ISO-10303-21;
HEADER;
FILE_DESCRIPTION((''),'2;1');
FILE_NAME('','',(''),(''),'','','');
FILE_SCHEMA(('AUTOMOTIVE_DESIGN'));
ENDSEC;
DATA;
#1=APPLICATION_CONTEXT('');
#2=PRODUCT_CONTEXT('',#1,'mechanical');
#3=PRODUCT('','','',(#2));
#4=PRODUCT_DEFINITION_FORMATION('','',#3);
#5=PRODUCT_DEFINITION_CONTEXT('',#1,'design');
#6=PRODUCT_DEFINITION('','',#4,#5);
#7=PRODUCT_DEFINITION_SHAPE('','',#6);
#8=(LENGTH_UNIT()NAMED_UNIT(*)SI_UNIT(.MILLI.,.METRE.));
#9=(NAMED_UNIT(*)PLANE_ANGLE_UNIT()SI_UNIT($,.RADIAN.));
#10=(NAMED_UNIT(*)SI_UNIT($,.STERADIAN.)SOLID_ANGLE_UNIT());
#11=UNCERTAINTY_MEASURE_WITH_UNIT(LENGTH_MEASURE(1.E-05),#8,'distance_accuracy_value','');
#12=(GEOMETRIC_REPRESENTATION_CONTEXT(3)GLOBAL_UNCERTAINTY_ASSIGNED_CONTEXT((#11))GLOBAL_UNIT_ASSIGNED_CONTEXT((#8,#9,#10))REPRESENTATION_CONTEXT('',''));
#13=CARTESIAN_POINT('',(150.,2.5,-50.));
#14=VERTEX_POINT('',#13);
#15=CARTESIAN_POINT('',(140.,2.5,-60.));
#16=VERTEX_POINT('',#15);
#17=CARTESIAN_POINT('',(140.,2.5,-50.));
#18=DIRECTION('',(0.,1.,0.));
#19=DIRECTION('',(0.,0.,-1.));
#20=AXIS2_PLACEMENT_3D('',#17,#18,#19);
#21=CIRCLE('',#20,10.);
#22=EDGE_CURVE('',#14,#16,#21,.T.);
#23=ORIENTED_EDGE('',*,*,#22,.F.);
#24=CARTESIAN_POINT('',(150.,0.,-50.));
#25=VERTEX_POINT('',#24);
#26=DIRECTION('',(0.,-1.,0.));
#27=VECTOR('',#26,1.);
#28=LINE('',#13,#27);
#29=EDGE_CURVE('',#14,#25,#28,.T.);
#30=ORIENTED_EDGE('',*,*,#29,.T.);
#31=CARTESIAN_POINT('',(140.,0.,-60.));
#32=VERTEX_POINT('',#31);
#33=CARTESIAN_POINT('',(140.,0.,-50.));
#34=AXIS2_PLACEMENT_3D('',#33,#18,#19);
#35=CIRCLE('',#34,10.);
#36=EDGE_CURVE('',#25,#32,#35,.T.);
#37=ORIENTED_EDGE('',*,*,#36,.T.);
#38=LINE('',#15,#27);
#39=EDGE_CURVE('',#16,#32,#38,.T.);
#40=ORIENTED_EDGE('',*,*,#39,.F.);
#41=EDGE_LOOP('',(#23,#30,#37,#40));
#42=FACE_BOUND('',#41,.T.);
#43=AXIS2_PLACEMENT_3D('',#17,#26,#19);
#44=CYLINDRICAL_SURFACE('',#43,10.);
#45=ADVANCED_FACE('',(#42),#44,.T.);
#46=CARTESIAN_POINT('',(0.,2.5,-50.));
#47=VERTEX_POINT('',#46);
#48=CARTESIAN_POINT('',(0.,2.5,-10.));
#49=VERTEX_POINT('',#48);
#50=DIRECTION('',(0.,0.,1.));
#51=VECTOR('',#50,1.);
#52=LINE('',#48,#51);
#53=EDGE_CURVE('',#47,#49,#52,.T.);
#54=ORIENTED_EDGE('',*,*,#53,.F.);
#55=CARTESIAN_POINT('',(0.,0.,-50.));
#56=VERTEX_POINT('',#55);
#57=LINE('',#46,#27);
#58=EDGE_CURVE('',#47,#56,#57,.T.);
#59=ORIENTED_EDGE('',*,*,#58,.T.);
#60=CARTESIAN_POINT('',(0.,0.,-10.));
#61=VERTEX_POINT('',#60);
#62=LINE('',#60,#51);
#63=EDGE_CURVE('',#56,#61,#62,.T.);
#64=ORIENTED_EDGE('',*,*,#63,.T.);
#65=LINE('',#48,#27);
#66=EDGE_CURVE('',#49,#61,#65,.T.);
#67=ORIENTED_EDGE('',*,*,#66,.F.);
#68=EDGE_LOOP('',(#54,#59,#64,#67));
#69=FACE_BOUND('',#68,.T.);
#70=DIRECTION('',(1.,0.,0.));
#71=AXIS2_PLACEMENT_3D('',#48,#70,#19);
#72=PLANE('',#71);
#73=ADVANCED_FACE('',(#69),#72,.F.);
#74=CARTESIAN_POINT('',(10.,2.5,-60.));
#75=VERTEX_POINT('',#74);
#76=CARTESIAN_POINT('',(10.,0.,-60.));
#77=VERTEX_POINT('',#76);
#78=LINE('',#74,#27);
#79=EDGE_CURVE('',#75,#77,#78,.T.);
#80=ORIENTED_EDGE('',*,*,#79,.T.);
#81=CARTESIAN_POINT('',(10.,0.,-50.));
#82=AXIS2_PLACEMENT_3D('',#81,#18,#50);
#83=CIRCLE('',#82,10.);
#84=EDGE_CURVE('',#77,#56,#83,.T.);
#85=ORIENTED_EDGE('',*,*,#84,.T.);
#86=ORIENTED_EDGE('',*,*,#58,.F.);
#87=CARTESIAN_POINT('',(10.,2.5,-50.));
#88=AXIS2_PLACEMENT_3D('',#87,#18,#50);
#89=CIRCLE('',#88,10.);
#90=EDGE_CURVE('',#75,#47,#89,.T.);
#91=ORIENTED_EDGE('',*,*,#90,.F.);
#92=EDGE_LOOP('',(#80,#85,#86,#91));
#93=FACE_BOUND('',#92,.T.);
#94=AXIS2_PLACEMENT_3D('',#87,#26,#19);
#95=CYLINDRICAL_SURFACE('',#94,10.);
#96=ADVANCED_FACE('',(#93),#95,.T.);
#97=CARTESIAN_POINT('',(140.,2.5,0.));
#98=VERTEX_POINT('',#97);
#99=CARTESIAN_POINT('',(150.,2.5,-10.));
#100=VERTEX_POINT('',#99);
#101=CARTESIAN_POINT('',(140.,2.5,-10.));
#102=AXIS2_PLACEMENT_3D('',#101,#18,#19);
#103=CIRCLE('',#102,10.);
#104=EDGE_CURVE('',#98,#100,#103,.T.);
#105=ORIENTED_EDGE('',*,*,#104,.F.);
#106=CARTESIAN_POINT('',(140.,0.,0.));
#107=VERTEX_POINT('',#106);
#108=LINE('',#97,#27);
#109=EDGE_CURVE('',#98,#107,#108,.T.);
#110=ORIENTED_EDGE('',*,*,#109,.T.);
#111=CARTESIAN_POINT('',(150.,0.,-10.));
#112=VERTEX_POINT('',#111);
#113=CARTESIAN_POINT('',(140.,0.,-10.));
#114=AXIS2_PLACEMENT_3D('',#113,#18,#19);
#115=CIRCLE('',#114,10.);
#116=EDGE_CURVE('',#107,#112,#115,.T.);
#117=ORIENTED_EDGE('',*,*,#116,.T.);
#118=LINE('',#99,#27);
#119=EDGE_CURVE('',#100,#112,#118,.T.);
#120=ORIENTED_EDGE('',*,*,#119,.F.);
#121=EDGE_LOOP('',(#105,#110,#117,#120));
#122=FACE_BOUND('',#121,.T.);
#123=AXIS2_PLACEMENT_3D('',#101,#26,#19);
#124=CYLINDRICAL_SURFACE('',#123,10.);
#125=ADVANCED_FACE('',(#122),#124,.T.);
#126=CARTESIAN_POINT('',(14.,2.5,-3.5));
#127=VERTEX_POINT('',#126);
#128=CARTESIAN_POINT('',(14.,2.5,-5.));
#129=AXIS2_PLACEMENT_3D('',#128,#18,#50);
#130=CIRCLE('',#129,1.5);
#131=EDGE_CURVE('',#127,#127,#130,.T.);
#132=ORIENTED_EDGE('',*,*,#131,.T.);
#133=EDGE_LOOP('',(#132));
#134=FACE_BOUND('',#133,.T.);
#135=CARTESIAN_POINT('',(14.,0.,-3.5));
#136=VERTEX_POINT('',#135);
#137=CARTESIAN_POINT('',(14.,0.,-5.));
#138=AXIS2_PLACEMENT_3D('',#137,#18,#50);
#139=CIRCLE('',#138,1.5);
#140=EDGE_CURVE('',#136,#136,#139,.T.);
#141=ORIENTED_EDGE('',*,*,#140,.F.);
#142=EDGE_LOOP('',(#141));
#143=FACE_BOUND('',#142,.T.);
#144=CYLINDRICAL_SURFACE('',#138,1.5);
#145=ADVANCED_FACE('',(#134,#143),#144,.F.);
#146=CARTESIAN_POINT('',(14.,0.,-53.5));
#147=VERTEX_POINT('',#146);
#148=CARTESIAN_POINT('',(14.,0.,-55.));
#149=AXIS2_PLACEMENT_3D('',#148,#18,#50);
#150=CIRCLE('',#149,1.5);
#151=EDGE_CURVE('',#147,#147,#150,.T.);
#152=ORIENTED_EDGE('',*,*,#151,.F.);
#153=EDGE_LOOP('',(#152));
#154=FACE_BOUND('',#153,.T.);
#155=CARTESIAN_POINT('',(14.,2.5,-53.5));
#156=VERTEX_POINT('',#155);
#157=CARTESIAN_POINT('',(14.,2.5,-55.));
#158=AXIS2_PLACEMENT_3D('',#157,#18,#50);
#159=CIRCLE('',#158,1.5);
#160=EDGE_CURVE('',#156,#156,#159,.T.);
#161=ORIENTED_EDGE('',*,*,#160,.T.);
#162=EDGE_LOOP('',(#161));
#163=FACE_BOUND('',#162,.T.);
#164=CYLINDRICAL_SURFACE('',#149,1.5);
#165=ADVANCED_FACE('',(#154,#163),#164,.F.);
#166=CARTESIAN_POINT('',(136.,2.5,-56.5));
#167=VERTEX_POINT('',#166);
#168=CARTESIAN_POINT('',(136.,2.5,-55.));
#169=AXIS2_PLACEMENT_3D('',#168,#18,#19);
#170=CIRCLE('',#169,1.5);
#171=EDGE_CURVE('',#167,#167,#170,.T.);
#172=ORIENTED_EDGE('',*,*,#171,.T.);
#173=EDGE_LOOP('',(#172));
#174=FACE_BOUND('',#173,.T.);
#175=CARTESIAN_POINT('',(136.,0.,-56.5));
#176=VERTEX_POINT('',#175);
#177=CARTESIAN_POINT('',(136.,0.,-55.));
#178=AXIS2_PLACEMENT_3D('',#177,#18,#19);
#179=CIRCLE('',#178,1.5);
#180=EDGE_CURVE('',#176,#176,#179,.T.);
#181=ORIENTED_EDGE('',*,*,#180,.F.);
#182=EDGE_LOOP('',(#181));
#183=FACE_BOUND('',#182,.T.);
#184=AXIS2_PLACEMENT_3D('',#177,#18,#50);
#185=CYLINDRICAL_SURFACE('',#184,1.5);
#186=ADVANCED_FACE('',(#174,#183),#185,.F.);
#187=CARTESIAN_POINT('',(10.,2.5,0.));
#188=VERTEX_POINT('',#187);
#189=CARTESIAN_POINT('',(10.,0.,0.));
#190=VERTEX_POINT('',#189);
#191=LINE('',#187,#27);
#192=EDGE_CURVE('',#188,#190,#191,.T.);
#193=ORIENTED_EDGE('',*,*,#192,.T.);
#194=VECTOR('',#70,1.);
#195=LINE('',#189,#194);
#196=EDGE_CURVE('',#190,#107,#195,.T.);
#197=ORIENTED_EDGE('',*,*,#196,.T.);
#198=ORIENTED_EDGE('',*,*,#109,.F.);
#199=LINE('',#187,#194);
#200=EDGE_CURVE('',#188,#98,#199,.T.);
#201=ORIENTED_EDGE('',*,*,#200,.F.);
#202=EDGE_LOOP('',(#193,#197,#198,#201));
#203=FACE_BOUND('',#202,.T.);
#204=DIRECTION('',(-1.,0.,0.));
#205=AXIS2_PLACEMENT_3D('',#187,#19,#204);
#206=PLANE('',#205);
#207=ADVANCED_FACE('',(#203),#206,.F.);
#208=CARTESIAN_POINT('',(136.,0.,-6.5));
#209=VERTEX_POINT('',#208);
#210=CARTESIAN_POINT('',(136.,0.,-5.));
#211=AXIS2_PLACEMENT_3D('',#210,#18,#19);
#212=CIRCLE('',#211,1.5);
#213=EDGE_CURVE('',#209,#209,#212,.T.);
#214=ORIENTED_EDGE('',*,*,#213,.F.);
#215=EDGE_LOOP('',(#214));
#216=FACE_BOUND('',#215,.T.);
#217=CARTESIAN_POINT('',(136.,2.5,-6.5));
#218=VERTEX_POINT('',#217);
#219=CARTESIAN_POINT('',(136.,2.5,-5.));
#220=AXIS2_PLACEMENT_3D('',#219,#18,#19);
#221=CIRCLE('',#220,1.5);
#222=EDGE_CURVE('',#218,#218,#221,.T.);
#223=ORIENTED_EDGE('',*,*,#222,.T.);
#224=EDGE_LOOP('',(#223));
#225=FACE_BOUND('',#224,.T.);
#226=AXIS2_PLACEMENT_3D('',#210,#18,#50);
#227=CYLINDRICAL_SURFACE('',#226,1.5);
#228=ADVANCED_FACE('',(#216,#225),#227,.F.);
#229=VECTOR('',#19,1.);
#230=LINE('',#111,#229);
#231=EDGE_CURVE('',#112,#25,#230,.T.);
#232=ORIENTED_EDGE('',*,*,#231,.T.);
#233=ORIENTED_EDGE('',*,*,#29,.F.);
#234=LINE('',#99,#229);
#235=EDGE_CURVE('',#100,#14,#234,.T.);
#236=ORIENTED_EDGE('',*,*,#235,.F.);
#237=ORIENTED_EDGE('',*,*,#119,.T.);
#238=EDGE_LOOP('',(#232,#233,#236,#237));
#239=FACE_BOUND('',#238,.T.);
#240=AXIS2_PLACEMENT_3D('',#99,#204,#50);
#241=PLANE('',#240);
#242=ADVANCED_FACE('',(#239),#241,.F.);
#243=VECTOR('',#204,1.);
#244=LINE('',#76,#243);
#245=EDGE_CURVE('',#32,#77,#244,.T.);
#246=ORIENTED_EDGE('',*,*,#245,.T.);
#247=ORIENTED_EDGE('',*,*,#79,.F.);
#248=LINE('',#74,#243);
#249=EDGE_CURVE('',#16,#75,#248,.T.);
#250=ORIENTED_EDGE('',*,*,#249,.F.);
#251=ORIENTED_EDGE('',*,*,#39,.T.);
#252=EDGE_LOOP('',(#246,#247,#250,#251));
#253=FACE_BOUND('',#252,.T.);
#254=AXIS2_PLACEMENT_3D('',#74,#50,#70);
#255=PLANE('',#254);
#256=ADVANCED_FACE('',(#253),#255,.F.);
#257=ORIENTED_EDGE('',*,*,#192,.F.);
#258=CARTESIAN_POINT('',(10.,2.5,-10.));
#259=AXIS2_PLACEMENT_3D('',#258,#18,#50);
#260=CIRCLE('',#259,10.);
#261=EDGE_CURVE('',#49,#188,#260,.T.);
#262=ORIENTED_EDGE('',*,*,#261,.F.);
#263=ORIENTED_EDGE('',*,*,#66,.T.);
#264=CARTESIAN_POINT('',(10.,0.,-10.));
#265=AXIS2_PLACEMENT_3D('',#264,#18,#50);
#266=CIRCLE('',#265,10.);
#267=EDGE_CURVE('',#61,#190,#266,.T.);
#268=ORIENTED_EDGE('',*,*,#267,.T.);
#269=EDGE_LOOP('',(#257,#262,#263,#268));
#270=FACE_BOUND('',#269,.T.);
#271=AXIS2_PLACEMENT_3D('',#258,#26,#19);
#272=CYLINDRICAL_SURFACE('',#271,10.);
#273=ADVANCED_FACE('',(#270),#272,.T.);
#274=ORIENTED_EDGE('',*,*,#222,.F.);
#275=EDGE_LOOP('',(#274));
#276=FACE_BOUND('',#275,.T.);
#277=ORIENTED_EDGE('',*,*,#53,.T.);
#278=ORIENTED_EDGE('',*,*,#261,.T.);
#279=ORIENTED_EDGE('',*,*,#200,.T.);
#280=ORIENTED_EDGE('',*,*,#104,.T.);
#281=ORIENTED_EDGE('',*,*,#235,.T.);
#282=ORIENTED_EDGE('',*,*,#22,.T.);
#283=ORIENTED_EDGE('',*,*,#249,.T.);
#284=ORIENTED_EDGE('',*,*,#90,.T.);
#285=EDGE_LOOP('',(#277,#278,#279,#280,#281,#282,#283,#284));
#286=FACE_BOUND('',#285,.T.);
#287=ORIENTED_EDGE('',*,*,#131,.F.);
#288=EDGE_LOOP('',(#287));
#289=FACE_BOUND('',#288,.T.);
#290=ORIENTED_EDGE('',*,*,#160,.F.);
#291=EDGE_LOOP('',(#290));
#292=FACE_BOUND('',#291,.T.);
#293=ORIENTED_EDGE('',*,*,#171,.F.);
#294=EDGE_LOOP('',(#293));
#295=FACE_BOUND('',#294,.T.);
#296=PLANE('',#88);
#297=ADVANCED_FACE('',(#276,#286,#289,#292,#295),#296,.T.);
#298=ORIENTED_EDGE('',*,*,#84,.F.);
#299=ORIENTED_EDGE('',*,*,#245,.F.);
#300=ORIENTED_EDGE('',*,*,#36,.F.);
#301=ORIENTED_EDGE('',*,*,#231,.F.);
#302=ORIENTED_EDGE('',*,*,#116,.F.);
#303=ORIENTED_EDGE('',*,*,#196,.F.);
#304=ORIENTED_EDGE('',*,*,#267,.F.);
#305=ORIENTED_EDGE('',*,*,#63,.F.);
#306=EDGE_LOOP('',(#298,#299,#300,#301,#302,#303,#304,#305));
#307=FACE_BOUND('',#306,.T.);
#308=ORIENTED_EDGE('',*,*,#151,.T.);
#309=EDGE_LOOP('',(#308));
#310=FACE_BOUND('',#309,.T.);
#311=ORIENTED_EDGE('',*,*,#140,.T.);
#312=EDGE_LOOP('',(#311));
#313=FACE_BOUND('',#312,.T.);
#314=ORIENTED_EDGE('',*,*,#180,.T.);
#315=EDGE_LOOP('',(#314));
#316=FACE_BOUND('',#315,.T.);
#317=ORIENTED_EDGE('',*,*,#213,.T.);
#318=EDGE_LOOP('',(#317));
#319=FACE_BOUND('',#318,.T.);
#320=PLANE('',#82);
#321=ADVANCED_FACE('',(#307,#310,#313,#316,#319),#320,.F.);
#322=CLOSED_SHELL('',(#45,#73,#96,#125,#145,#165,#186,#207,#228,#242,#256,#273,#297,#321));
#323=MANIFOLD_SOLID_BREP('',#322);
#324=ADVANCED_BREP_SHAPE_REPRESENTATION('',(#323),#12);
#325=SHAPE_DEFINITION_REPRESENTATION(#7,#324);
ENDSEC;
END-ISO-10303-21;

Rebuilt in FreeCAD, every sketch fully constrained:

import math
import FreeCAD as App
import Part
import Sketcher
from FreeCAD import Vector
Q = App.Units.Quantity

doc = App.newDocument("Part")
body = doc.addObject("PartDesign::Body", "Body")

# Sketch on XZ plane
sketch1 = body.newObject("Sketcher::SketchObject", "Sketch")
sketch1.AttachmentSupport = (doc.getObject("XZ_Plane"), [""])
sketch1.MapMode = "FlatFace"
sketch1.addGeometry(Part.LineSegment(Vector(10, 0, 0), Vector(140, 0, 0)), False)
sketch1.addGeometry(Part.ArcOfCircle(Part.Circle(Vector(140, -10, 0), Vector(0, 0, 1), 10), math.radians(0), math.radians(90)), False)
sketch1.addGeometry(Part.LineSegment(Vector(150, -10, 0), Vector(150, -50, 0)), False)
sketch1.addGeometry(Part.ArcOfCircle(Part.Circle(Vector(140, -50, 0), Vector(0, 0, 1), 10), math.radians(-90), math.radians(0)), False)
sketch1.addGeometry(Part.LineSegment(Vector(140, -60, 0), Vector(10, -60, 0)), False)
sketch1.addGeometry(Part.ArcOfCircle(Part.Circle(Vector(10, -50, 0), Vector(0, 0, 1), 10), math.radians(180), math.radians(270)), False)
sketch1.addGeometry(Part.LineSegment(Vector(0, -50, 0), Vector(0, -10, 0)), False)
sketch1.addGeometry(Part.ArcOfCircle(Part.Circle(Vector(10, -10, 0), Vector(0, 0, 1), 10), math.radians(90), math.radians(180)), False)
sketch1.addConstraint(Sketcher.Constraint("Tangent", 0, 2, 1, 2))
sketch1.addConstraint(Sketcher.Constraint("Tangent", 1, 1, 2, 1))
sketch1.addConstraint(Sketcher.Constraint("Tangent", 2, 2, 3, 2))
sketch1.addConstraint(Sketcher.Constraint("Tangent", 3, 1, 4, 1))
sketch1.addConstraint(Sketcher.Constraint("Tangent", 4, 2, 5, 2))
sketch1.addConstraint(Sketcher.Constraint("Tangent", 5, 1, 6, 1))
sketch1.addConstraint(Sketcher.Constraint("Tangent", 6, 2, 7, 2))
sketch1.addConstraint(Sketcher.Constraint("Tangent", 7, 1, 0, 1))
sketch1.addConstraint(Sketcher.Constraint("Horizontal", 0))
sketch1.addConstraint(Sketcher.Constraint("Vertical", 2))
sketch1.addConstraint(Sketcher.Constraint("Horizontal", 4))
sketch1.addConstraint(Sketcher.Constraint("Vertical", 6))
sketch1.addConstraint(Sketcher.Constraint("Equal", 1, 3))
sketch1.addConstraint(Sketcher.Constraint("Equal", 3, 5))
sketch1.addConstraint(Sketcher.Constraint("Equal", 5, 7))
sketch1.addConstraint(Sketcher.Constraint("PointOnObject", 0, 2, -1))
sketch1.addConstraint(Sketcher.Constraint("PointOnObject", 5, 1, -2))
sketch1.addConstraint(Sketcher.Constraint("Radius", 1, Q("10 mm")))
sketch1.addConstraint(Sketcher.Constraint("DistanceX", 0, 1, 0, 2, Q("130 mm")))
sketch1.addConstraint(Sketcher.Constraint("DistanceY", 2, 2, 2, 1, Q("40 mm")))
pad1 = body.newObject("PartDesign::Pad", "Pad")
pad1.Profile = sketch1
pad1.Length = 2.5
pad1.Reversed = True

# Sketch on XZ plane
sketch2 = body.newObject("Sketcher::SketchObject", "Sketch001")
sketch2.AttachmentSupport = (doc.getObject("XZ_Plane"), [""])
sketch2.MapMode = "FlatFace"
sketch2.AttachmentOffset = App.Placement(Vector(0, 0, -2.5), App.Rotation())
sketch2.addGeometry(Part.Circle(Vector(14, -5, 0), Vector(0, 0, 1), 1.5), False)
sketch2.addGeometry(Part.Circle(Vector(14, -55, 0), Vector(0, 0, 1), 1.5), False)
sketch2.addGeometry(Part.Circle(Vector(136, -5, 0), Vector(0, 0, 1), 1.5), False)
sketch2.addGeometry(Part.Circle(Vector(136, -55, 0), Vector(0, 0, 1), 1.5), False)
sketch2.addConstraint(Sketcher.Constraint("Equal", 0, 1))
sketch2.addConstraint(Sketcher.Constraint("Equal", 1, 2))
sketch2.addConstraint(Sketcher.Constraint("Equal", 2, 3))
sketch2.addConstraint(Sketcher.Constraint("Horizontal", 0, 3, 2, 3))
sketch2.addConstraint(Sketcher.Constraint("Horizontal", 1, 3, 3, 3))
sketch2.addConstraint(Sketcher.Constraint("Vertical", 0, 3, 1, 3))
sketch2.addConstraint(Sketcher.Constraint("Vertical", 2, 3, 3, 3))
sketch2.addConstraint(Sketcher.Constraint("Diameter", 0, Q("3 mm")))
sketch2.addConstraint(Sketcher.Constraint("DistanceX", -1, 1, 0, 3, Q("14 mm")))
sketch2.addConstraint(Sketcher.Constraint("DistanceY", 0, 3, -1, 1, Q("5 mm")))
sketch2.addConstraint(Sketcher.Constraint("DistanceY", 1, 3, -1, 1, Q("55 mm")))
sketch2.addConstraint(Sketcher.Constraint("DistanceX", -1, 1, 2, 3, Q("136 mm")))
pocket1 = body.newObject("PartDesign::Pocket", "Pocket")
pocket1.Profile = sketch2
pocket1.Type = "ThroughAll"
pocket1.Reversed = True

doc.recompute()
